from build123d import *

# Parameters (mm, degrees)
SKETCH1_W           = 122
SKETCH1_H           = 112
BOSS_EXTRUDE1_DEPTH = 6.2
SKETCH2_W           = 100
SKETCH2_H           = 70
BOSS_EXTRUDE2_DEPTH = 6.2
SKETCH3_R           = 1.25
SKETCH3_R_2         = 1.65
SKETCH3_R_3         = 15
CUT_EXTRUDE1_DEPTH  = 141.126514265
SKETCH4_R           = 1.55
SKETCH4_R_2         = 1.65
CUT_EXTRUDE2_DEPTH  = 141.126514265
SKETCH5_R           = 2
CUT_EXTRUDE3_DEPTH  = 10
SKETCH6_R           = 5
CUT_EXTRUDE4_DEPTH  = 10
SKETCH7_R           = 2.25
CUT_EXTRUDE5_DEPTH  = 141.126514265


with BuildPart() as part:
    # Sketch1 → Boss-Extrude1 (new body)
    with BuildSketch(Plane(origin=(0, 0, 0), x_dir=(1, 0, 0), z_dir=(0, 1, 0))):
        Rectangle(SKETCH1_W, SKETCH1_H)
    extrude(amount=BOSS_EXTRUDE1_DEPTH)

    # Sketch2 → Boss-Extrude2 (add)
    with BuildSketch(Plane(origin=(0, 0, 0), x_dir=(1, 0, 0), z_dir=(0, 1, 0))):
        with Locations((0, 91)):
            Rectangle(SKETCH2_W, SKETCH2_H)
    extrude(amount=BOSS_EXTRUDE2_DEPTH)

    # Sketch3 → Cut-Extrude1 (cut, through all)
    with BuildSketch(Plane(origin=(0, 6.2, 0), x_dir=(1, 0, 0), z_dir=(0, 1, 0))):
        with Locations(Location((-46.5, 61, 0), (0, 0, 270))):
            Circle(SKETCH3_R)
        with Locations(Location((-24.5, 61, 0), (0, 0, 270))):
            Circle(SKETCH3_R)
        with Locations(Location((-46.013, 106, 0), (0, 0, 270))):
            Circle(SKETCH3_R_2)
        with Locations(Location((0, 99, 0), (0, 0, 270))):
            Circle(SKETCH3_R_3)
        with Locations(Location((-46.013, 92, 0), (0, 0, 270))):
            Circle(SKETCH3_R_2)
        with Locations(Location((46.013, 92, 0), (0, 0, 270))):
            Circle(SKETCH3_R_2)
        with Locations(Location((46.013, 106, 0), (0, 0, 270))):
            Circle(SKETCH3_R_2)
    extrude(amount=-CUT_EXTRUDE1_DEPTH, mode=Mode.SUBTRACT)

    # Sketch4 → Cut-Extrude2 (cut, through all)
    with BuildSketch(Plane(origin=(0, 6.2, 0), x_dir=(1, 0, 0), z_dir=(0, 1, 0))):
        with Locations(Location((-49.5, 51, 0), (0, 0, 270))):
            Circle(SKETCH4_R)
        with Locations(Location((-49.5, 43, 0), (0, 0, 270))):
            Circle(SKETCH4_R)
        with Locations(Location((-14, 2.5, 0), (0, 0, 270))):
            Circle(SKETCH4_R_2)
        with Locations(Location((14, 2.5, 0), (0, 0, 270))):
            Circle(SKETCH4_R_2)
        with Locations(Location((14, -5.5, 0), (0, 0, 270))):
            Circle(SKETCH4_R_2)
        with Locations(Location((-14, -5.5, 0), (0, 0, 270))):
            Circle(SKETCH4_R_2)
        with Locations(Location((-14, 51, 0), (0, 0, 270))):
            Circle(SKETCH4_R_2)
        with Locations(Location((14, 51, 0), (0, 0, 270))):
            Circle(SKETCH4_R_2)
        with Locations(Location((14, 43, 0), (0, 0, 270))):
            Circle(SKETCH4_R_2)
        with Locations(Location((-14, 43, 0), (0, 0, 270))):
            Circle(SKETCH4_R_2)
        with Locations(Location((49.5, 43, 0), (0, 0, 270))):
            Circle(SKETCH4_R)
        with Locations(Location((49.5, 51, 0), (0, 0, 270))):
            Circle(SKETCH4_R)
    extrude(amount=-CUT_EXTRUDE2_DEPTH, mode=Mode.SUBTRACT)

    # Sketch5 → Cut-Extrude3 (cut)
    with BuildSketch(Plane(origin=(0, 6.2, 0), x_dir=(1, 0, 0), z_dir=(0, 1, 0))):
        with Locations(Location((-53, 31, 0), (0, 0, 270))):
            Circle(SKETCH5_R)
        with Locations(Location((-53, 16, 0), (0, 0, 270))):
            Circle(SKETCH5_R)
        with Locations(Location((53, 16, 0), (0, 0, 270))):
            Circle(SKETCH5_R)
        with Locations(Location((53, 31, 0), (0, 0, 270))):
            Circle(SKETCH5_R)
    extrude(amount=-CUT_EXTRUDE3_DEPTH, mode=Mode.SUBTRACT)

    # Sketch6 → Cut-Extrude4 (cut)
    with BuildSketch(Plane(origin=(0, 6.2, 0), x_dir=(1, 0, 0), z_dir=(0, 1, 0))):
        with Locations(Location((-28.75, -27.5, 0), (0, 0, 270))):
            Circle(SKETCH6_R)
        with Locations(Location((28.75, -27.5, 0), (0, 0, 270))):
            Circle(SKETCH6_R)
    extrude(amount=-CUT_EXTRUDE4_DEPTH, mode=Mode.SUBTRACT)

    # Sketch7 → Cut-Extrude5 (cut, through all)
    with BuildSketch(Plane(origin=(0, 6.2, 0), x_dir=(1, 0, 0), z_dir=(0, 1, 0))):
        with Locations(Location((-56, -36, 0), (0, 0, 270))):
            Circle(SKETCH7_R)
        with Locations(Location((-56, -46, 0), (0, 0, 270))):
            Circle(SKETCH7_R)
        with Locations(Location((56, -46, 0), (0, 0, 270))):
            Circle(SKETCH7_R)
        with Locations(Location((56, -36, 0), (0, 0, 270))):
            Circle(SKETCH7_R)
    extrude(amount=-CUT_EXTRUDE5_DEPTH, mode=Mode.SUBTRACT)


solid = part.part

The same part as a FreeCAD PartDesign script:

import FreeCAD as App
import Part
import Sketcher
from FreeCAD import Vector
Q = App.Units.Quantity


def add_polygon(sketch, points):
    """Adds a closed chain of lines whose ends are joined by coincident constraints."""
    first, n = sketch.GeometryCount, len(points)
    for a, b in zip(points, points[1:] + points[:1]):
        sketch.addGeometry(Part.LineSegment(App.Vector(*a, 0), App.Vector(*b, 0)), False)
    for i in range(n):
        sketch.addConstraint(Sketcher.Constraint("Coincident", first + i, 2, first + (i + 1) % n, 1))

doc = App.newDocument("Part")
params = doc.addObject("Spreadsheet::Sheet", "Params")
for row, (alias, value) in enumerate([
    ("sketch1_width", "122 mm"),
    ("sketch1_height", "112 mm"),
    ("pad1_length", "6.2 mm"),
    ("sketch2_width", "100 mm"),
    ("sketch2_height", "70 mm"),
    ("pad2_length", "6.2 mm"),
    ("sketch3_diameter", "30 mm"),
    ("sketch3_diameter2", "2.5 mm"),
    ("sketch3_diameter3", "3.3 mm"),
    ("sketch4_diameter", "3.1 mm"),
    ("sketch4_diameter2", "3.3 mm"),
    ("sketch5_diameter", "4 mm"),
    ("pocket3_length", "10 mm"),
    ("sketch6_diameter", "10 mm"),
    ("pocket4_length", "10 mm"),
    ("sketch7_diameter", "4.5 mm"),
], start=1):
    params.set(f"A{row}", alias)
    params.set(f"B{row}", "=" + value)
    params.setAlias(f"B{row}", alias)

body = doc.addObject("PartDesign::Body", "Body")

sketch1 = body.newObject("Sketcher::SketchObject", "Sketch")
sketch1.AttachmentSupport = (doc.getObject("XZ_Plane"), [""])
sketch1.MapMode = "FlatFace"
add_polygon(sketch1, [(-61, -56), (-61, 56), (61, 56), (61, -56)])
sketch1.addConstraint([
    Sketcher.Constraint("Vertical", 0),
    Sketcher.Constraint("Horizontal", 1),
    Sketcher.Constraint("Vertical", 2),
    Sketcher.Constraint("Horizontal", 3),
    Sketcher.Constraint("Symmetric", 0, 2, 2, 2, -1, 1),
    Sketcher.Constraint("DistanceX", 1, 1, 1, 2, Q("122 mm")),
    Sketcher.Constraint("DistanceY", 0, 1, 0, 2, Q("112 mm")),
])
sketch1.setExpression("Constraints[9]", "Params.sketch1_width")
sketch1.setExpression("Constraints[10]", "Params.sketch1_height")
pad1 = body.newObject("PartDesign::Pad", "Pad")
pad1.Profile = sketch1
pad1.setExpression("Length", "Params.pad1_length")
pad1.Reversed = True

sketch2 = body.newObject("Sketcher::SketchObject", "Sketch001")
sketch2.AttachmentSupport = (doc.getObject("XZ_Plane"), [""])
sketch2.MapMode = "FlatFace"
add_polygon(sketch2, [(-50, -126), (-50, -56), (50, -56), (50, -126)])
sketch2.addConstraint([
    Sketcher.Constraint("Vertical", 0),
    Sketcher.Constraint("Horizontal", 1),
    Sketcher.Constraint("Vertical", 2),
    Sketcher.Constraint("Horizontal", 3),
    Sketcher.Constraint("DistanceX", 1, 1, 1, 2, Q("100 mm")),
    Sketcher.Constraint("DistanceY", 0, 1, 0, 2, Q("70 mm")),
    Sketcher.Constraint("DistanceX", 0, 2, -1, 1, Q("50 mm")),
    Sketcher.Constraint("DistanceY", 0, 2, -1, 1, Q("56 mm")),
])
sketch2.setExpression("Constraints[8]", "Params.sketch2_width")
sketch2.setExpression("Constraints[9]", "Params.sketch2_height")
pad2 = body.newObject("PartDesign::Pad", "Pad001")
pad2.Profile = sketch2
pad2.setExpression("Length", "Params.pad2_length")
pad2.Reversed = True

sketch3 = body.newObject("Sketcher::SketchObject", "Sketch002")
sketch3.AttachmentSupport = (doc.getObject("XZ_Plane"), [""])
sketch3.MapMode = "FlatFace"
sketch3.AttachmentOffset = App.Placement(Vector(0, 0, -6.2), App.Rotation())
sketch3.addGeometry([
    Part.Circle(Vector(-46.5, -61, 0), Vector(0, 0, 1), 1.2),
    Part.Circle(Vector(-24.5, -61, 0), Vector(0, 0, 1), 1.2),
    Part.Circle(Vector(-46, -106, 0), Vector(0, 0, 1), 1.6),
    Part.Circle(Vector(0, -99, 0), Vector(0, 0, 1), 15),
    Part.Circle(Vector(-46, -92, 0), Vector(0, 0, 1), 1.6),
    Part.Circle(Vector(46, -92, 0), Vector(0, 0, 1), 1.6),
    Part.Circle(Vector(46, -106, 0), Vector(0, 0, 1), 1.6),
], False)
sketch3.addConstraint([
    Sketcher.Constraint("Equal", 0, 1),
    Sketcher.Constraint("Equal", 2, 4),
    Sketcher.Constraint("Equal", 4, 5),
    Sketcher.Constraint("Equal", 5, 6),
    Sketcher.Constraint("Symmetric", 4, 3, 5, 3, -2),
    Sketcher.Constraint("Symmetric", 2, 3, 6, 3, -2),
    Sketcher.Constraint("PointOnObject", 3, 3, -2),
    Sketcher.Constraint("Horizontal", 0, 3, 1, 3),
    Sketcher.Constraint("Vertical", 2, 3, 4, 3),
    Sketcher.Constraint("Diameter", 3, Q("30 mm")),
    Sketcher.Constraint("Diameter", 0, Q("2.5 mm")),
    Sketcher.Constraint("Diameter", 2, Q("3.3 mm")),
    Sketcher.Constraint("DistanceY", 0, 3, -1, 1, Q("61 mm")),
    Sketcher.Constraint("DistanceY", 2, 3, -1, 1, Q("106 mm")),
    Sketcher.Constraint("DistanceY", 3, 3, -1, 1, Q("99 mm")),
    Sketcher.Constraint("DistanceY", 4, 3, -1, 1, Q("92 mm")),
    Sketcher.Constraint("DistanceX", 0, 3, 1, 3, Q("22 mm")),
    Sketcher.Constraint("DistanceX", 0, 3, -1, 1, Q("46.5 mm")),
    Sketcher.Constraint("DistanceX", 2, 3, -1, 1, Q("46.013 mm")),
])
sketch3.setExpression("Constraints[9]", "Params.sketch3_diameter")
sketch3.setExpression("Constraints[10]", "Params.sketch3_diameter2")
sketch3.setExpression("Constraints[11]", "Params.sketch3_diameter3")
pocket1 = body.newObject("PartDesign::Pocket", "Pocket")
pocket1.Profile = sketch3
pocket1.Type = "ThroughAll"
pocket1.Reversed = True

sketch4 = body.newObject("Sketcher::SketchObject", "Sketch003")
sketch4.AttachmentSupport = (doc.getObject("XZ_Plane"), [""])
sketch4.MapMode = "FlatFace"
sketch4.AttachmentOffset = App.Placement(Vector(0, 0, -6.2), App.Rotation())
sketch4.addGeometry([
    Part.Circle(Vector(-49.5, -51, 0), Vector(0, 0, 1), 1.6),
    Part.Circle(Vector(-49.5, -43, 0), Vector(0, 0, 1), 1.6),
    Part.Circle(Vector(-14, -2.5, 0), Vector(0, 0, 1), 1.6),
    Part.Circle(Vector(14, -2.5, 0), Vector(0, 0, 1), 1.6),
    Part.Circle(Vector(14, 5.5, 0), Vector(0, 0, 1), 1.6),
    Part.Circle(Vector(-14, 5.5, 0), Vector(0, 0, 1), 1.6),
    Part.Circle(Vector(-14, -51, 0), Vector(0, 0, 1), 1.6),
    Part.Circle(Vector(14, -51, 0), Vector(0, 0, 1), 1.6),
    Part.Circle(Vector(14, -43, 0), Vector(0, 0, 1), 1.6),
    Part.Circle(Vector(-14, -43, 0), Vector(0, 0, 1), 1.6),
    Part.Circle(Vector(49.5, -43, 0), Vector(0, 0, 1), 1.6),
    Part.Circle(Vector(49.5, -51, 0), Vector(0, 0, 1), 1.6),
], False)
sketch4.addConstraint([
    Sketcher.Constraint("Equal", 0, 1),
    Sketcher.Constraint("Equal", 2, 3),
    Sketcher.Constraint("Equal", 3, 4),
    Sketcher.Constraint("Equal", 4, 5),
    Sketcher.Constraint("Equal", 5, 6),
    Sketcher.Constraint("Equal", 6, 7),
    Sketcher.Constraint("Equal", 7, 8),
    Sketcher.Constraint("Equal", 8, 9),
    Sketcher.Constraint("Equal", 1, 10),
    Sketcher.Constraint("Equal", 10, 11),
    Sketcher.Constraint("Symmetric", 2, 3, 3, 3, -2),
    Sketcher.Constraint("Symmetric", 4, 3, 5, 3, -2),
    Sketcher.Constraint("Symmetric", 6, 3, 7, 3, -2),
    Sketcher.Constraint("Symmetric", 8, 3, 9, 3, -2),
    Sketcher.Constraint("Symmetric", 1, 3, 10, 3, -2),
    Sketcher.Constraint("Symmetric", 0, 3, 11, 3, -2),
    Sketcher.Constraint("Horizontal", 0, 3, 6, 3),
    Sketcher.Constraint("Horizontal", 1, 3, 8, 3),
    Sketcher.Constraint("Vertical", 0, 3, 1, 3),
    Sketcher.Constraint("Vertical", 3, 3, 4, 3),
    Sketcher.Constraint("Vertical", 5, 3, 6, 3),
    Sketcher.Constraint("Vertical", 7, 3, 8, 3),
    Sketcher.Constraint("Diameter", 0, Q("3.1 mm")),
    Sketcher.Constraint("Diameter", 2, Q("3.3 mm")),
    Sketcher.Constraint("DistanceY", 0, 3, -1, 1, Q("51 mm")),
    Sketcher.Constraint("DistanceY", 1, 3, -1, 1, Q("43 mm")),
    Sketcher.Constraint("DistanceX", 2, 3, -1, 1, Q("14 mm")),
    Sketcher.Constraint("DistanceY", 3, 3, 4, 3, Q("8 mm")),
    Sketcher.Constraint("DistanceX", 0, 3, -1, 1, Q("49.5 mm")),
    Sketcher.Constraint("DistanceY", 2, 3, -1, 1, Q("2.5 mm")),
])
sketch4.setExpression("Constraints[22]", "Params.sketch4_diameter")
sketch4.setExpression("Constraints[23]", "Params.sketch4_diameter2")
pocket2 = body.newObject("PartDesign::Pocket", "Pocket001")
pocket2.Profile = sketch4
pocket2.Type = "ThroughAll"
pocket2.Reversed = True

sketch5 = body.newObject("Sketcher::SketchObject", "Sketch004")
sketch5.AttachmentSupport = (doc.getObject("XZ_Plane"), [""])
sketch5.MapMode = "FlatFace"
sketch5.AttachmentOffset = App.Placement(Vector(0, 0, -6.2), App.Rotation())
sketch5.addGeometry([
    Part.Circle(Vector(-53, -31, 0), Vector(0, 0, 1), 2),
    Part.Circle(Vector(-53, -16, 0), Vector(0, 0, 1), 2),
    Part.Circle(Vector(53, -16, 0), Vector(0, 0, 1), 2),
    Part.Circle(Vector(53, -31, 0), Vector(0, 0, 1), 2),
], False)
sketch5.addConstraint([
    Sketcher.Constraint("Equal", 0, 1),
    Sketcher.Constraint("Equal", 1, 2),
    Sketcher.Constraint("Equal", 2, 3),
    Sketcher.Constraint("Symmetric", 1, 3, 2, 3, -2),
    Sketcher.Constraint("Symmetric", 0, 3, 3, 3, -2),
    Sketcher.Constraint("Vertical", 0, 3, 1, 3),
    Sketcher.Constraint("Diameter", 0, Q("4 mm")),
    Sketcher.Constraint("DistanceX", 0, 3, -1, 1, Q("53 mm")),
    Sketcher.Constraint("DistanceY", 0, 3, -1, 1, Q("31 mm")),
    Sketcher.Constraint("DistanceY", 1, 3, -1, 1, Q("16 mm")),
])
sketch5.setExpression("Constraints[6]", "Params.sketch5_diameter")
pocket3 = body.newObject("PartDesign::Pocket", "Pocket002")
pocket3.Profile = sketch5
pocket3.setExpression("Length", "Params.pocket3_length")
pocket3.Reversed = True

sketch6 = body.newObject("Sketcher::SketchObject", "Sketch005")
sketch6.AttachmentSupport = (doc.getObject("XZ_Plane"), [""])
sketch6.MapMode = "FlatFace"
sketch6.AttachmentOffset = App.Placement(Vector(0, 0, -6.2), App.Rotation())
sketch6.addGeometry([
    Part.Circle(Vector(-29, 28, 0), Vector(0, 0, 1), 5),
    Part.Circle(Vector(29, 28, 0), Vector(0, 0, 1), 5),
], False)
sketch6.addConstraint([
    Sketcher.Constraint("Equal", 0, 1),
    Sketcher.Constraint("Symmetric", 0, 3, 1, 3, -2),
    Sketcher.Constraint("Diameter", 0, Q("10 mm")),
    Sketcher.Constraint("DistanceY", -1, 1, 0, 3, Q("27.5 mm")),
    Sketcher.Constraint("DistanceX", 0, 3, 1, 3, Q("57.5 mm")),
])
sketch6.setExpression("Constraints[2]", "Params.sketch6_diameter")
pocket4 = body.newObject("PartDesign::Pocket", "Pocket003")
pocket4.Profile = sketch6
pocket4.setExpression("Length", "Params.pocket4_length")
pocket4.Reversed = True

sketch7 = body.newObject("Sketcher::SketchObject", "Sketch006")
sketch7.AttachmentSupport = (doc.getObject("XZ_Plane"), [""])
sketch7.MapMode = "FlatFace"
sketch7.AttachmentOffset = App.Placement(Vector(0, 0, -6.2), App.Rotation())
sketch7.addGeometry([
    Part.Circle(Vector(-56, 36, 0), Vector(0, 0, 1), 2.2),
    Part.Circle(Vector(-56, 46, 0), Vector(0, 0, 1), 2.2),
    Part.Circle(Vector(56, 46, 0), Vector(0, 0, 1), 2.2),
    Part.Circle(Vector(56, 36, 0), Vector(0, 0, 1), 2.2),
], False)
sketch7.addConstraint([
    Sketcher.Constraint("Equal", 0, 1),
    Sketcher.Constraint("Equal", 1, 2),
    Sketcher.Constraint("Equal", 2, 3),
    Sketcher.Constraint("Symmetric", 1, 3, 2, 3, -2),
    Sketcher.Constraint("Symmetric", 0, 3, 3, 3, -2),
    Sketcher.Constraint("Vertical", 0, 3, 1, 3),
    Sketcher.Constraint("Diameter", 0, Q("4.5 mm")),
    Sketcher.Constraint("DistanceX", 0, 3, -1, 1, Q("56 mm")),
    Sketcher.Constraint("DistanceY", -1, 1, 0, 3, Q("36 mm")),
    Sketcher.Constraint("DistanceY", -1, 1, 1, 3, Q("46 mm")),
])
sketch7.setExpression("Constraints[6]", "Params.sketch7_diameter")
pocket5 = body.newObject("PartDesign::Pocket", "Pocket004")
pocket5.Profile = sketch7
pocket5.Type = "ThroughAll"
pocket5.Reversed = True

doc.recompute()
